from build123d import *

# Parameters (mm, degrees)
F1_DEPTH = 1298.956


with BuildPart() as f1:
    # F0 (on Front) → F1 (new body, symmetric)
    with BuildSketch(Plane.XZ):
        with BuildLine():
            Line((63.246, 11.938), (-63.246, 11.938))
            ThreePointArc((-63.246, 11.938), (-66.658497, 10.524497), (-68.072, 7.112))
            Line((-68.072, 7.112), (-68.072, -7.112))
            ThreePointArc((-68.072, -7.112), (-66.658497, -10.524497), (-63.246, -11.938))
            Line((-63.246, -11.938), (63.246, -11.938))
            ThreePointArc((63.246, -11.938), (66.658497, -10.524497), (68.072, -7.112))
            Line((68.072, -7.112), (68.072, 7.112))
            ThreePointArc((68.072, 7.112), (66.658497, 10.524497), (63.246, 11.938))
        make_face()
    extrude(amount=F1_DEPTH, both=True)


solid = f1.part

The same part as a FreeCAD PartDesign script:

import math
import FreeCAD as App
import Part
import Sketcher
from FreeCAD import Vector
Q = App.Units.Quantity

doc = App.newDocument("Part")
params = doc.addObject("Spreadsheet::Sheet", "Params")
for row, (alias, value) in enumerate([
    ("sketch1_radius", "0.19 in"),
    ("sketch1_width", "4.98 in"),
    ("sketch1_height", "0.56 in"),
    ("pad1_length", "102.28 in"),
], start=1):
    params.set(f"A{row}", alias)
    params.set(f"B{row}", "=" + value)
    params.setAlias(f"B{row}", alias)

body = doc.addObject("PartDesign::Body", "Body")

# Sketch on XZ plane
sketch1 = body.newObject("Sketcher::SketchObject", "Sketch")
sketch1.AttachmentSupport = (doc.getObject("XZ_Plane"), [""])
sketch1.MapMode = "FlatFace"
sketch1.addGeometry(Part.LineSegment(Vector(63.2, 11.9, 0), Vector(-63.2, 11.9, 0)), False)
sketch1.addGeometry(Part.ArcOfCircle(Part.Circle(Vector(-63.2, 7.1, 0), Vector(0, 0, 1), 4.8), math.radians(90), math.radians(180)), False)
sketch1.addGeometry(Part.LineSegment(Vector(-68.1, 7.1, 0), Vector(-68.1, -7.1, 0)), False)
sketch1.addGeometry(Part.ArcOfCircle(Part.Circle(Vector(-63.2, -7.1, 0), Vector(0, 0, 1), 4.8), math.radians(-180), math.radians(-90)), False)
sketch1.addGeometry(Part.LineSegment(Vector(-63.2, -11.9, 0), Vector(63.2, -11.9, 0)), False)
sketch1.addGeometry(Part.ArcOfCircle(Part.Circle(Vector(63.2, -7.1, 0), Vector(0, 0, 1), 4.8), math.radians(-90), math.radians(0)), False)
sketch1.addGeometry(Part.LineSegment(Vector(68.1, -7.1, 0), Vector(68.1, 7.1, 0)), False)
sketch1.addGeometry(Part.ArcOfCircle(Part.Circle(Vector(63.2, 7.1, 0), Vector(0, 0, 1), 4.8), math.radians(0), math.radians(90)), False)
sketch1.addConstraint(Sketcher.Constraint("Tangent", 0, 2, 1, 1))
sketch1.addConstraint(Sketcher.Constraint("Tangent", 1, 2, 2, 1))
sketch1.addConstraint(Sketcher.Constraint("Tangent", 2, 2, 3, 1))
sketch1.addConstraint(Sketcher.Constraint("Tangent", 3, 2, 4, 1))
sketch1.addConstraint(Sketcher.Constraint("Tangent", 4, 2, 5, 1))
sketch1.addConstraint(Sketcher.Constraint("Tangent", 5, 2, 6, 1))
sketch1.addConstraint(Sketcher.Constraint("Tangent", 6, 2, 7, 1))
sketch1.addConstraint(Sketcher.Constraint("Tangent", 7, 2, 0, 1))
sketch1.addConstraint(Sketcher.Constraint("Horizontal", 0))
sketch1.addConstraint(Sketcher.Constraint("Vertical", 2))
sketch1.addConstraint(Sketcher.Constraint("Horizontal", 4))
sketch1.addConstraint(Sketcher.Constraint("Vertical", 6))
sketch1.addConstraint(Sketcher.Constraint("Equal", 1, 3))
sketch1.addConstraint(Sketcher.Constraint("Equal", 3, 5))
sketch1.addConstraint(Sketcher.Constraint("Equal", 5, 7))
sketch1.addConstraint(Sketcher.Constraint("Symmetric", 1, 3, 5, 3, -1, 1))
sketch1.addConstraint(Sketcher.Constraint("Radius", 1, Q("0.19 in")))
sketch1.addConstraint(Sketcher.Constraint("DistanceX", 0, 2, 0, 1, Q("4.98 in")))
sketch1.addConstraint(Sketcher.Constraint("DistanceY", 2, 2, 2, 1, Q("0.56 in")))
sketch1.setExpression("Constraints[16]", "Params.sketch1_radius")
sketch1.setExpression("Constraints[17]", "Params.sketch1_width")
sketch1.setExpression("Constraints[18]", "Params.sketch1_height")
pad1 = body.newObject("PartDesign::Pad", "Pad")
pad1.Profile = sketch1
pad1.setExpression("Length", "Params.pad1_length")
pad1.Midplane = True

doc.recompute()
